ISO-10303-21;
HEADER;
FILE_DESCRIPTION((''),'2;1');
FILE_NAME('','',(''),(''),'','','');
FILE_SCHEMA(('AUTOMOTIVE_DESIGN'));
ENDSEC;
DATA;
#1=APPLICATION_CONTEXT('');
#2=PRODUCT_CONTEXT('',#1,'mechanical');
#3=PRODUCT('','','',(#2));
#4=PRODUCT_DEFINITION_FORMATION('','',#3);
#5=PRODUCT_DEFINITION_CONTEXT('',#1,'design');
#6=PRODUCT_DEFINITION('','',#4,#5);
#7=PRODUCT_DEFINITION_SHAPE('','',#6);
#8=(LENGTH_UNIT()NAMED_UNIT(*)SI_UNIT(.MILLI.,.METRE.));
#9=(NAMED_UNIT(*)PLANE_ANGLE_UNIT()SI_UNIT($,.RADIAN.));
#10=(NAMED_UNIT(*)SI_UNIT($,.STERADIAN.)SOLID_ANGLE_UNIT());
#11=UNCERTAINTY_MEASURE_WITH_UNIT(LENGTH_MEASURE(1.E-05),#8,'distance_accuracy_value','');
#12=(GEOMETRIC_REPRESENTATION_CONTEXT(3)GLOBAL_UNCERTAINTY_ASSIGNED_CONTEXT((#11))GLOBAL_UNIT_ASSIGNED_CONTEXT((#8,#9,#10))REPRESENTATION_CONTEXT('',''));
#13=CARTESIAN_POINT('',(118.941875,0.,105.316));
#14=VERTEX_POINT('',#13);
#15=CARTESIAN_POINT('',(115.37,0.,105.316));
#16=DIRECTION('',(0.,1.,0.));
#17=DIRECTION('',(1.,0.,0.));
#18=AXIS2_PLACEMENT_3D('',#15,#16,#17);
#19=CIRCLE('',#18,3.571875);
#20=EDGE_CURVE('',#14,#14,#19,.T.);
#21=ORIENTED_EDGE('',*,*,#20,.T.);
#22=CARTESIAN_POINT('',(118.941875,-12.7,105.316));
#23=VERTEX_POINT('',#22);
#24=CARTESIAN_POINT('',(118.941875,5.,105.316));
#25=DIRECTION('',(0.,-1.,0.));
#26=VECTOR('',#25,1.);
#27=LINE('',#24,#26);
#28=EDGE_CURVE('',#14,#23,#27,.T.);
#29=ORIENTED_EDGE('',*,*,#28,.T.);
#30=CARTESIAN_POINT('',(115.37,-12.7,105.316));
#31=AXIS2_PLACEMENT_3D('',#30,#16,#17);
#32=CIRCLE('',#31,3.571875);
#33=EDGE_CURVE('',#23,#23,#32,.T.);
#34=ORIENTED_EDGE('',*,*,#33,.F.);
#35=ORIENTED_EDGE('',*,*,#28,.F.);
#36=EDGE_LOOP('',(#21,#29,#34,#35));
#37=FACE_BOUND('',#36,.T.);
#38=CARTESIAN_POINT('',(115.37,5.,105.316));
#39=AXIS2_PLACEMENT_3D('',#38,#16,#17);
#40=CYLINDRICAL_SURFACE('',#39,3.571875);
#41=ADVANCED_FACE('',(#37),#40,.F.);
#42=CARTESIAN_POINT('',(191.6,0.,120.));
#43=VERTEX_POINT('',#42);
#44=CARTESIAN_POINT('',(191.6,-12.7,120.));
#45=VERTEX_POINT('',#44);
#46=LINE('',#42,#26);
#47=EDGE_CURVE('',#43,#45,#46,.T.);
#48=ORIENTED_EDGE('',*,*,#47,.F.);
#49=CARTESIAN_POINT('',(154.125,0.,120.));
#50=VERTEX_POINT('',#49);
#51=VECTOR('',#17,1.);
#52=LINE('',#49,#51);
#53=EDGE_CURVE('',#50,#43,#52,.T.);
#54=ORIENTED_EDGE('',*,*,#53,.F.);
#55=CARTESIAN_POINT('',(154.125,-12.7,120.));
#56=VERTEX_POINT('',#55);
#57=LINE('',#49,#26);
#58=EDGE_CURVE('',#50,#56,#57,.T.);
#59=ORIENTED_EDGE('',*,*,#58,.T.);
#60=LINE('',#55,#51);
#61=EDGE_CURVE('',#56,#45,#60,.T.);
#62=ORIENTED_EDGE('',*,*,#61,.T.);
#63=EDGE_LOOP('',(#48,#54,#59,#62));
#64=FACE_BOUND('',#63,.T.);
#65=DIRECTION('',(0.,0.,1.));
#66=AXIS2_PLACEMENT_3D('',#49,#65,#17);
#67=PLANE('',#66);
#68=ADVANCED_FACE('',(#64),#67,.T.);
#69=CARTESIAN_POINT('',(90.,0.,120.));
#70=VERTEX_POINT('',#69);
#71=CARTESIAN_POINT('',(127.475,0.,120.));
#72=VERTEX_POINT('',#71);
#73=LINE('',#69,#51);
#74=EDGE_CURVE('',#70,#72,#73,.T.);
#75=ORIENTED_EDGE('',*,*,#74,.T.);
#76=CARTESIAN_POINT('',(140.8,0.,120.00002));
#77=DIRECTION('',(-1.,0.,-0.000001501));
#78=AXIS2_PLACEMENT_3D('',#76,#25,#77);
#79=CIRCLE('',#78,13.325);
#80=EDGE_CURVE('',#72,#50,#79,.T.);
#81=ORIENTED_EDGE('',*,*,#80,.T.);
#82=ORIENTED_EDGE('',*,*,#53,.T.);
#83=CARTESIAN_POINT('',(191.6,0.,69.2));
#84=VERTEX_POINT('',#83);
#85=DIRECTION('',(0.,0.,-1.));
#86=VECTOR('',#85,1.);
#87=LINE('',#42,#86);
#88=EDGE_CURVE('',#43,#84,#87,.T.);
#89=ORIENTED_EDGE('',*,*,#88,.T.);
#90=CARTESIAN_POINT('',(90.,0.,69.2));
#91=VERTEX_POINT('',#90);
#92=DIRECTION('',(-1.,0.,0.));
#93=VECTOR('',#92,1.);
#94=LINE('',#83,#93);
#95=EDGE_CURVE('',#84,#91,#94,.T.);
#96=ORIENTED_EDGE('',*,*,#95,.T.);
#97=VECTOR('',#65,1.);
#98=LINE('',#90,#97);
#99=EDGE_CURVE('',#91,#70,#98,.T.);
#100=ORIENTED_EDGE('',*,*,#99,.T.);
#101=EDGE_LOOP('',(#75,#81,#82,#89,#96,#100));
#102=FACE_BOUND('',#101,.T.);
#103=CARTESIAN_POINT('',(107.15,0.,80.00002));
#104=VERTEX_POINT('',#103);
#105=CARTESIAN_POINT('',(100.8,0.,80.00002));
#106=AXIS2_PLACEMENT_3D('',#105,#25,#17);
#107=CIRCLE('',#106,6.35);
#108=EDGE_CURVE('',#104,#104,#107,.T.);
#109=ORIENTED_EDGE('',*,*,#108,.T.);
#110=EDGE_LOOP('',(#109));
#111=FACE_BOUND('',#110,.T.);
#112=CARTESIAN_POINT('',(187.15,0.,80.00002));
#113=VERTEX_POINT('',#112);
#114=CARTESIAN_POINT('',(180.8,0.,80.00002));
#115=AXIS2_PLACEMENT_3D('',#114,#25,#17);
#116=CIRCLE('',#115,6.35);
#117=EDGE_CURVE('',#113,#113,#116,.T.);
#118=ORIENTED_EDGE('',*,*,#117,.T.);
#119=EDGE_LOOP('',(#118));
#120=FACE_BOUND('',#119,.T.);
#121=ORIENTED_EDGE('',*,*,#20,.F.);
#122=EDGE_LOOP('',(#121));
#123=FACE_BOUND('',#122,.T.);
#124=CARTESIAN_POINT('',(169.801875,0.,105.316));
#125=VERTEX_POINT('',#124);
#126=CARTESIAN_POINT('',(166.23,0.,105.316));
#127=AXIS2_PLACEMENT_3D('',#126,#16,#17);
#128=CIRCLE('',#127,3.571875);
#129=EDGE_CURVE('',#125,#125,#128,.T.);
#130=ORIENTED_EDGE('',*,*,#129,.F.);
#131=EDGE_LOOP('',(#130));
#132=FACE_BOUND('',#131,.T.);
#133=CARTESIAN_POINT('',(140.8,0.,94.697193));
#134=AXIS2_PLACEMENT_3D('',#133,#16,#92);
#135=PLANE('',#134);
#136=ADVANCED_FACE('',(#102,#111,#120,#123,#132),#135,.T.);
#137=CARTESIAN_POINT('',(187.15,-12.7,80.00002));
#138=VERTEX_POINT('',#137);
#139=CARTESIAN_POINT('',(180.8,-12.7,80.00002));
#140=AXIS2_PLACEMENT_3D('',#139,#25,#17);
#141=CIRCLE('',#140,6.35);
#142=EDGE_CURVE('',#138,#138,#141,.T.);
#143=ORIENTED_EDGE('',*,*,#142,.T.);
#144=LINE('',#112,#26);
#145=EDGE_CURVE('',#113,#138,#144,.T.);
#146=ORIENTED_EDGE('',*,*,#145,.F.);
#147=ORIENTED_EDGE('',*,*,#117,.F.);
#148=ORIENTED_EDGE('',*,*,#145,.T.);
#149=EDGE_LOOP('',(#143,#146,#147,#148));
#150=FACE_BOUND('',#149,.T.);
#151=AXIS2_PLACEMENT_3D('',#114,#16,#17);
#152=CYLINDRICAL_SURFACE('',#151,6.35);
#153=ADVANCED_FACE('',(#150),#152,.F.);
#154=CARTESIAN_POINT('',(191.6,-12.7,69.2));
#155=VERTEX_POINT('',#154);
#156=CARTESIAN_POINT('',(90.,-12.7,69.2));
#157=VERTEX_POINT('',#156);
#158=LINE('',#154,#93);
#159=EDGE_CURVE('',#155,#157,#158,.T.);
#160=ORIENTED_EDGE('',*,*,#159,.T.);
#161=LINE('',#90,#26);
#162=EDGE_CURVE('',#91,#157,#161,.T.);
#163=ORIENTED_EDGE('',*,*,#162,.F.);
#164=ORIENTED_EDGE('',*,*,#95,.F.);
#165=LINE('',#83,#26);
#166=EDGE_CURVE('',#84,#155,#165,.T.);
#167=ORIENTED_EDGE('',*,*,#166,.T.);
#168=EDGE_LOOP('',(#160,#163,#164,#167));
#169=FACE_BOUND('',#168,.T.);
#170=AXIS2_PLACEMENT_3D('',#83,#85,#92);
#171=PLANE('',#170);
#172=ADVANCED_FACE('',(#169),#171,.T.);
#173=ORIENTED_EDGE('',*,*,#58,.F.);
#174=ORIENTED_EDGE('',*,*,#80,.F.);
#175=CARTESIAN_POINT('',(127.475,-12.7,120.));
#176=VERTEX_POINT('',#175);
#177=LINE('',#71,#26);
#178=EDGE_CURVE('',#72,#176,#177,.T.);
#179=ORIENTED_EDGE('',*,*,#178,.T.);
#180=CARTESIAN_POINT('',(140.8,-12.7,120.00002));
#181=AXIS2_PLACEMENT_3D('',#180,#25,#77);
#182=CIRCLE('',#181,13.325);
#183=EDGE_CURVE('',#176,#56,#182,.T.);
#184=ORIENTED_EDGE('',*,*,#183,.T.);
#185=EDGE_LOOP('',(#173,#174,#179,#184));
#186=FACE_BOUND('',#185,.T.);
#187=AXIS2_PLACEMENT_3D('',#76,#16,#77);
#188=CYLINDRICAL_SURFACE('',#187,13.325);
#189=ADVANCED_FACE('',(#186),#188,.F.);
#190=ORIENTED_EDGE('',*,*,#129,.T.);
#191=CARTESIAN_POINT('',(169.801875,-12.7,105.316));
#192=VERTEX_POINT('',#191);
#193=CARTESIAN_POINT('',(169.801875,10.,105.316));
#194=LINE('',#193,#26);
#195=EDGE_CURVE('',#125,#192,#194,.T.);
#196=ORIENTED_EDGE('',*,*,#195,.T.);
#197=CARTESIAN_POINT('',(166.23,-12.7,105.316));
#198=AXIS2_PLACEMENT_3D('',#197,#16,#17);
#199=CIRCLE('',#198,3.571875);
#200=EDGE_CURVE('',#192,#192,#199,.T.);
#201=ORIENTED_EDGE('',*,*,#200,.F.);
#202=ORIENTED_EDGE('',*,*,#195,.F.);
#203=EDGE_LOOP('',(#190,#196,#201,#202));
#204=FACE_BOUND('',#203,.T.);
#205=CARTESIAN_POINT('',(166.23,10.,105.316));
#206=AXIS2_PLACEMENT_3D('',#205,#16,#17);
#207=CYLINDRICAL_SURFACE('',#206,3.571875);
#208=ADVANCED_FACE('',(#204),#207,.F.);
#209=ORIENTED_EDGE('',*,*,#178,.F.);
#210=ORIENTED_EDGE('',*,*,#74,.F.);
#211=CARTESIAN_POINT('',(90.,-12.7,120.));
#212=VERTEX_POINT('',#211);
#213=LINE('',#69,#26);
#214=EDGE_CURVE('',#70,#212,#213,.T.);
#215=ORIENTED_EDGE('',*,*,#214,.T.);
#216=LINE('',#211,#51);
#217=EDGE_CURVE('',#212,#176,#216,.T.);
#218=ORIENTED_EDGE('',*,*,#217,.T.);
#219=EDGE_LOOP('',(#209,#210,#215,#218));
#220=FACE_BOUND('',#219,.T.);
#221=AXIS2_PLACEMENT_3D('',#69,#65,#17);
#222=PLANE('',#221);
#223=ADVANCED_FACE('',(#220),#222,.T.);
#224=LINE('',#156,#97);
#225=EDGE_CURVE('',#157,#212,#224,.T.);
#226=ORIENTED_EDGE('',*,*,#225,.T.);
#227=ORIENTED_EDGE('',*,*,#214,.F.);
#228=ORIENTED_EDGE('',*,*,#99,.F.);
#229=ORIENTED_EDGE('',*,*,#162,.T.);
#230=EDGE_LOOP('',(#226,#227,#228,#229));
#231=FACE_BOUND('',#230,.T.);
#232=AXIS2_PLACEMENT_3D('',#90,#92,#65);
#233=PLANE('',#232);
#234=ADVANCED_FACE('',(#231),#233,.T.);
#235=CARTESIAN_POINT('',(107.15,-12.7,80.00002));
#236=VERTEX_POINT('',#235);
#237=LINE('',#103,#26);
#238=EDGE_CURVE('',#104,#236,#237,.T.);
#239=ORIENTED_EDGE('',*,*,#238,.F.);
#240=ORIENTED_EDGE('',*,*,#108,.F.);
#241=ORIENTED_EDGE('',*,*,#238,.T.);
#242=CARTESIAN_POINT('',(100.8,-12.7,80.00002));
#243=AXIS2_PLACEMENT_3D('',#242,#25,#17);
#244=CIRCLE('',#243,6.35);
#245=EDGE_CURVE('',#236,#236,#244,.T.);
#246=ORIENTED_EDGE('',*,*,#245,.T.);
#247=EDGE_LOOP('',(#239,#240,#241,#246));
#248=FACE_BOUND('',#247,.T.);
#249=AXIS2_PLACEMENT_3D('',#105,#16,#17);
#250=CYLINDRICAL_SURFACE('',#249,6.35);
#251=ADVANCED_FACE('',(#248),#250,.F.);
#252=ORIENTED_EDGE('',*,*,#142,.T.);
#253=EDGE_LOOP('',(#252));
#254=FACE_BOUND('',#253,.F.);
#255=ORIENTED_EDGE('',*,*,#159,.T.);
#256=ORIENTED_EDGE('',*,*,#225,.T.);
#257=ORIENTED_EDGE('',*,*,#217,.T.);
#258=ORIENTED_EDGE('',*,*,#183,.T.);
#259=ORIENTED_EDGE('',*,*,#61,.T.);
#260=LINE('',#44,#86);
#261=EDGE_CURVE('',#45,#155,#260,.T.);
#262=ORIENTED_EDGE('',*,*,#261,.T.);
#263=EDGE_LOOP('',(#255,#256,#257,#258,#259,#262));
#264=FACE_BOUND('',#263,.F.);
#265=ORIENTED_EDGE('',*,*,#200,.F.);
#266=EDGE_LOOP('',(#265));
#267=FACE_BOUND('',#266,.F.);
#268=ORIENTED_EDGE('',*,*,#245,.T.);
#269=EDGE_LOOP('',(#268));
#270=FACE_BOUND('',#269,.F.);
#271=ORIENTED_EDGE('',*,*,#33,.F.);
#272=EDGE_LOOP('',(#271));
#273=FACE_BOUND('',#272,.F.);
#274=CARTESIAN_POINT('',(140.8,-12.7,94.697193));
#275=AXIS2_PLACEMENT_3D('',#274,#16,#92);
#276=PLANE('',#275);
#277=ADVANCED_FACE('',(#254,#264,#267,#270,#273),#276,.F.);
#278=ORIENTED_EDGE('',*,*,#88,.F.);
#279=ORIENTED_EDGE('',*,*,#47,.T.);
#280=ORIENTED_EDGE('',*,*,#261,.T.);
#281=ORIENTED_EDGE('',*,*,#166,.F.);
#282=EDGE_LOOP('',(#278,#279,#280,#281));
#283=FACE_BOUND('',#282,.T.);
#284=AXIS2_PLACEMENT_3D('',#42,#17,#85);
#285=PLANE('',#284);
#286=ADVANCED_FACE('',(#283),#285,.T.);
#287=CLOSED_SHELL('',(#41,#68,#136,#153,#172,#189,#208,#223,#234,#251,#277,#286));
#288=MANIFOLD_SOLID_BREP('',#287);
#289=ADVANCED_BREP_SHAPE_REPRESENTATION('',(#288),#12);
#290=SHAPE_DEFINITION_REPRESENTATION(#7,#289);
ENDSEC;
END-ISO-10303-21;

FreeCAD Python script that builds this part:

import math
import FreeCAD as App
import Part
import Sketcher

V = App.Vector
Q = App.Units.Quantity

doc = App.newDocument("Part")
body = doc.addObject("PartDesign::Body", "Body")

sketch1 = doc.addObject("Sketcher::SketchObject", "Sketch")
body.addObject(sketch1)
sketch1.AttachmentSupport = (doc.XZ_Plane, [""])
sketch1.MapMode = "FlatFace"
sketch1.addGeometry(Part.Circle(V(0, 0, 0), V(0, 0, 1), 3.6), False)
sketch1.addConstraint(Sketcher.Constraint("Coincident", 0, 3, -1, 1))
sketch1.addConstraint(Sketcher.Constraint("Diameter", 0, Q("0.28125 in")))
pad1 = doc.addObject("PartDesign::Pad", "Pad")
body.addObject(pad1)
pad1.Profile = sketch1
pad1.Length = 50
body2 = doc.addObject("PartDesign::Body", "Body001")
doc.recompute()

body.Placement = App.Placement(V(66.23, 10, 105.316), App.Rotation(V(0, 0, 1), 0))
boolean = doc.addObject("PartDesign::Boolean", "Boolean")
body2.addObject(boolean)
boolean.Type = "Fuse"
boolean.addObjects([body])
body3 = doc.addObject("PartDesign::Body", "Body002")

sketch2 = doc.addObject("Sketcher::SketchObject", "Sketch001")
body3.addObject(sketch2)
sketch2.AttachmentSupport = (doc.getObject("XZ_Plane002"), [""])
sketch2.MapMode = "FlatFace"
sketch2.addGeometry(Part.Circle(V(0, 0, 0), V(0, 0, 1), 3.6), False)
sketch2.addConstraint(Sketcher.Constraint("Coincident", 0, 3, -1, 1))
sketch2.addConstraint(Sketcher.Constraint("Diameter", 0, Q("0.28125 in")))
pad2 = doc.addObject("PartDesign::Pad", "Pad001")
body3.addObject(pad2)
pad2.Profile = sketch2
pad2.Length = 33.7
body4 = doc.addObject("PartDesign::Body", "Body003")
doc.recompute()

body3.Placement = App.Placement(V(15.37, 5, 105.316), App.Rotation(V(0, 0, 1), 0))
boolean2 = doc.addObject("PartDesign::Boolean", "Boolean001")
body4.addObject(boolean2)
boolean2.Type = "Fuse"
boolean2.addObjects([body3])
body5 = doc.addObject("PartDesign::Body", "Body004")

sketch3 = doc.addObject("Sketcher::SketchObject", "Sketch002")
body5.addObject(sketch3)
sketch3.AttachmentSupport = (doc.getObject("XZ_Plane004"), [""])
sketch3.MapMode = "FlatFace"
sketch3.addGeometry(Part.LineSegment(V(0, 110, 0), V(0, 59, 0)), False)
sketch3.addGeometry(Part.LineSegment(V(0, 59, 0), V(102, 59, 0)), False)
sketch3.addGeometry(Part.LineSegment(V(102, 59, 0), V(102, 110, 0)), False)
sketch3.addGeometry(Part.LineSegment(V(102, 110, 0), V(64, 110, 0)), False)
sketch3.addGeometry(Part.ArcOfCircle(Part.Circle(V(51, 110, 0), V(0, 0, 1), 13), math.radians(-180), math.radians(0)), False)
sketch3.addGeometry(Part.LineSegment(V(37, 110, 0), V(0, 110, 0)), False)
sketch3.addGeometry(Part.Circle(V(91, 70, 0), V(0, 0, 1), 6), False)
sketch3.addGeometry(Part.Circle(V(11, 70, 0), V(0, 0, 1), 6), False)
sketch3.addConstraint(Sketcher.Constraint("Coincident", 0, 2, 1, 1))
sketch3.addConstraint(Sketcher.Constraint("Coincident", 1, 2, 2, 1))
sketch3.addConstraint(Sketcher.Constraint("Coincident", 2, 2, 3, 1))
sketch3.addConstraint(Sketcher.Constraint("Coincident", 3, 2, 4, 2))
sketch3.addConstraint(Sketcher.Constraint("Coincident", 4, 1, 5, 1))
sketch3.addConstraint(Sketcher.Constraint("Coincident", 5, 2, 0, 1))
sketch3.addConstraint(Sketcher.Constraint("Vertical", 0))
sketch3.addConstraint(Sketcher.Constraint("Horizontal", 1))
sketch3.addConstraint(Sketcher.Constraint("Vertical", 2))
sketch3.addConstraint(Sketcher.Constraint("Horizontal", 3))
sketch3.addConstraint(Sketcher.Constraint("Horizontal", 5))
sketch3.addConstraint(Sketcher.Constraint("Equal", 6, 7))
sketch3.addConstraint(Sketcher.Constraint("PointOnObject", 0, 2, -2))
sketch3.addConstraint(Sketcher.Constraint("Horizontal", 6, 3, 7, 3))
sketch3.addConstraint(Sketcher.Constraint("Horizontal", 3, 2, 4, 1))
sketch3.addConstraint(Sketcher.Constraint("Equal", 3, 5))
sketch3.addConstraint(Sketcher.Constraint("Diameter", 6, Q("0.5 in")))
sketch3.addConstraint(Sketcher.Constraint("DistanceX", 1, 1, 1, 2, Q("4 in")))
sketch3.addConstraint(Sketcher.Constraint("DistanceY", 0, 2, 0, 1, Q("2 in")))
sketch3.addConstraint(Sketcher.Constraint("Radius", 4, Q("13.325 mm")))
sketch3.addConstraint(Sketcher.Constraint("DistanceX", -1, 1, 6, 3, Q("90.8 mm")))
sketch3.addConstraint(Sketcher.Constraint("DistanceX", -1, 1, 7, 3, Q("10.8 mm")))
sketch3.addConstraint(Sketcher.Constraint("DistanceY", -1, 1, 0, 2, Q("59.2 mm")))
sketch3.addConstraint(Sketcher.Constraint("DistanceY", 6, 3, 4, 3, Q("40 mm")))
sketch3.addConstraint(Sketcher.Constraint("DistanceY", -1, 1, 4, 3, Q("110.00002 mm")))
pad3 = doc.addObject("PartDesign::Pad", "Pad002")
body5.addObject(pad3)
pad3.Profile = sketch3
pad3.Length = Q("0.5 in")
body6 = doc.addObject("PartDesign::Body", "Body005")
doc.recompute()

body5.Placement = App.Placement(V(-10, 0, 10), App.Rotation(V(0, 0, 1), 0))
boolean3 = doc.addObject("PartDesign::Boolean", "Boolean002")
body6.addObject(boolean3)
boolean3.Type = "Fuse"
boolean3.addObjects([body5])
doc.recompute()

boolean4 = doc.addObject("PartDesign::Boolean", "Boolean003")
body6.addObject(boolean4)
boolean4.Type = "Cut"
boolean4.addObjects([body4])
doc.recompute()

boolean5 = doc.addObject("PartDesign::Boolean", "Boolean004")
body6.addObject(boolean5)
boolean5.Type = "Cut"
boolean5.addObjects([body2])
body7 = doc.addObject("PartDesign::Body", "Body006")
doc.recompute()

body6.Placement = App.Placement(V(100, 0, 0), App.Rotation(V(0, 0, 1), 0))
boolean6 = doc.addObject("PartDesign::Boolean", "Boolean005")
body7.addObject(boolean6)
boolean6.Type = "Fuse"
boolean6.addObjects([body6])

doc.recompute()
